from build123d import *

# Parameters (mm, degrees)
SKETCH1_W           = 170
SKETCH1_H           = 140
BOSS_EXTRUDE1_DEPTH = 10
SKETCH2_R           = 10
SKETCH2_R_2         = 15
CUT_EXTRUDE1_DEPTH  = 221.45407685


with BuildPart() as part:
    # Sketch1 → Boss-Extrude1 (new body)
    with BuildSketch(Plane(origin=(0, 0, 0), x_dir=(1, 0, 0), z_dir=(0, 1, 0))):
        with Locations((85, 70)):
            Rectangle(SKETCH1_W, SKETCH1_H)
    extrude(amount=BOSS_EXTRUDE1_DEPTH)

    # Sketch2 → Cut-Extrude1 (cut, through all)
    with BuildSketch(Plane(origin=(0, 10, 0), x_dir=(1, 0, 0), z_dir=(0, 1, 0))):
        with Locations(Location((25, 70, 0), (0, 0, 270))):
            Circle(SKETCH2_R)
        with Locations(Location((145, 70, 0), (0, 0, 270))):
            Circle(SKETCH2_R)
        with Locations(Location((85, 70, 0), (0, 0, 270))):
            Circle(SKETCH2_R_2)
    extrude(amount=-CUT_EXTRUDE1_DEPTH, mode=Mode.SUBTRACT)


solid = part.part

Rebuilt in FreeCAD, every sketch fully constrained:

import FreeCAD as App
import Part
import Sketcher

V = App.Vector
Q = App.Units.Quantity

doc = App.newDocument("Part")
params = doc.addObject("Spreadsheet::Sheet", "Params")
for row, (alias, value) in enumerate([
    ("sketch1_width", "170 mm"),
    ("sketch1_height", "140 mm"),
    ("pad1_length", "10 mm"),
    ("sketch2_diameter", "20 mm"),
    ("sketch2_diameter2", "30 mm"),
], start=1):
    params.set(f"A{row}", alias)
    params.set(f"B{row}", "=" + value)
    params.setAlias(f"B{row}", alias)

body = doc.addObject("PartDesign::Body", "Body")

# Sketch on XZ plane
sketch1 = doc.addObject("Sketcher::SketchObject", "Sketch")
body.addObject(sketch1)
sketch1.AttachmentSupport = (doc.XZ_Plane, [""])
sketch1.MapMode = "FlatFace"
sketch1.addGeometry([
    Part.LineSegment(V(0, -140, 0), V(0, 0, 0)),
    Part.LineSegment(V(0, 0, 0), V(170, 0, 0)),
    Part.LineSegment(V(170, 0, 0), V(170, -140, 0)),
    Part.LineSegment(V(170, -140, 0), V(0, -140, 0)),
], False)
sketch1.addConstraint([
    Sketcher.Constraint("Coincident", 0, 2, 1, 1),
    Sketcher.Constraint("Coincident", 1, 2, 2, 1),
    Sketcher.Constraint("Coincident", 2, 2, 3, 1),
    Sketcher.Constraint("Coincident", 3, 2, 0, 1),
    Sketcher.Constraint("Vertical", 0),
    Sketcher.Constraint("Horizontal", 1),
    Sketcher.Constraint("Vertical", 2),
    Sketcher.Constraint("Horizontal", 3),
    Sketcher.Constraint("Coincident", 0, 2, -1, 1),
    Sketcher.Constraint("DistanceX", 1, 1, 1, 2, Q("170 mm")),
    Sketcher.Constraint("DistanceY", 0, 1, 0, 2, Q("140 mm")),
])
sketch1.setExpression("Constraints[9]", "Params.sketch1_width")
sketch1.setExpression("Constraints[10]", "Params.sketch1_height")
pad1 = doc.addObject("PartDesign::Pad", "Pad")
body.addObject(pad1)
pad1.Profile = sketch1
pad1.setExpression("Length", "Params.pad1_length")
pad1.Reversed = True

# Sketch on XZ plane
sketch2 = doc.addObject("Sketcher::SketchObject", "Sketch001")
body.addObject(sketch2)
sketch2.AttachmentSupport = (doc.XZ_Plane, [""])
sketch2.MapMode = "FlatFace"
sketch2.AttachmentOffset = App.Placement(V(0, 0, -10), App.Rotation())
sketch2.addGeometry([
    Part.Circle(V(25, -70, 0), V(0, 0, 1), 10),
    Part.Circle(V(145, -70, 0), V(0, 0, 1), 10),
    Part.Circle(V(85, -70, 0), V(0, 0, 1), 15),
], False)
sketch2.addConstraint([
    Sketcher.Constraint("Equal", 0, 1),
    Sketcher.Constraint("Horizontal", 0, 3, 1, 3),
    Sketcher.Constraint("Horizontal", 1, 3, 2, 3),
    Sketcher.Constraint("Diameter", 0, Q("20 mm")),
    Sketcher.Constraint("Diameter", 2, Q("30 mm")),
    Sketcher.Constraint("DistanceX", -1, 1, 0, 3, Q("25 mm")),
    Sketcher.Constraint("DistanceY", 0, 3, -1, 1, Q("70 mm")),
    Sketcher.Constraint("DistanceX", -1, 1, 1, 3, Q("145 mm")),
    Sketcher.Constraint("DistanceX", -1, 1, 2, 3, Q("85 mm")),
])
sketch2.setExpression("Constraints[3]", "Params.sketch2_diameter")
sketch2.setExpression("Constraints[4]", "Params.sketch2_diameter2")
pocket1 = doc.addObject("PartDesign::Pocket", "Pocket")
body.addObject(pocket1)
pocket1.Profile = sketch2
pocket1.Type = "ThroughAll"
pocket1.Reversed = True

doc.recompute()
